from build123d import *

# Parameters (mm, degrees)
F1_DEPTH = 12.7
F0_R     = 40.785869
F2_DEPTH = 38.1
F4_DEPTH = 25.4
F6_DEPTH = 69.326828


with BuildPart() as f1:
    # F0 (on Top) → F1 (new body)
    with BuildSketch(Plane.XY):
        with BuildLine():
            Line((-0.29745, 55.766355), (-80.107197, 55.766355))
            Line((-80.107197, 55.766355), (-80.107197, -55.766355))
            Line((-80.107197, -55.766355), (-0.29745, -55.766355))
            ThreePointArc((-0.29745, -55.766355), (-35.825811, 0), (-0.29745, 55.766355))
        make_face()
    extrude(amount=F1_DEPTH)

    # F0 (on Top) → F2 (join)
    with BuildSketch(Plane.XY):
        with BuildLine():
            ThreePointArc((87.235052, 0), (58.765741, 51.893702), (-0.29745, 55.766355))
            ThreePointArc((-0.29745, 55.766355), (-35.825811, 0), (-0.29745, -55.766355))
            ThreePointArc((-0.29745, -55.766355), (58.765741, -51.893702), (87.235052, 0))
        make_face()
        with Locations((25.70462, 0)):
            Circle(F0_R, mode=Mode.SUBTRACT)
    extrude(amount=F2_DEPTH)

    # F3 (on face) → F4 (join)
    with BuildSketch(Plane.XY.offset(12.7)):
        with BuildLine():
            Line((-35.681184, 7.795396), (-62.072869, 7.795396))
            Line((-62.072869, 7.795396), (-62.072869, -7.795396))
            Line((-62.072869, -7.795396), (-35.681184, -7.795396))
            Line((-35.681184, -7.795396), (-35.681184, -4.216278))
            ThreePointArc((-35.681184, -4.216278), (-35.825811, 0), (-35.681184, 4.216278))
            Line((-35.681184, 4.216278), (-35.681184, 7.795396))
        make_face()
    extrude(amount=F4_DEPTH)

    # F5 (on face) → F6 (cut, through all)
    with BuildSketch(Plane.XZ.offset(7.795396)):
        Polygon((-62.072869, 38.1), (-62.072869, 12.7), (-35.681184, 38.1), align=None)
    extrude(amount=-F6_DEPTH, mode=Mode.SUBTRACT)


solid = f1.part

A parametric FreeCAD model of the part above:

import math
import FreeCAD as App
import Part
import Sketcher

V = App.Vector
Q = App.Units.Quantity


def add_polygon(sketch, points):
    """Adds a closed chain of lines whose ends are joined by coincident constraints."""
    first, n = sketch.GeometryCount, len(points)
    for a, b in zip(points, points[1:] + points[:1]):
        sketch.addGeometry(Part.LineSegment(App.Vector(*a, 0), App.Vector(*b, 0)), False)
    for i in range(n):
        sketch.addConstraint(Sketcher.Constraint("Coincident", first + i, 2, first + (i + 1) % n, 1))

doc = App.newDocument("Part")
params = doc.addObject("Spreadsheet::Sheet", "Params")
for row, (alias, value) in enumerate([
    ("pad1_length", "0.5 in"),
    ("pad2_length", "1.5 in"),
    ("pad3_length", "1 in"),
    ("sketch4_height", "1 in"),
], start=1):
    params.set(f"A{row}", alias)
    params.set(f"B{row}", "=" + value)
    params.setAlias(f"B{row}", alias)

body = doc.addObject("PartDesign::Body", "Body")

# Sketch on XY plane
sketch1 = body.newObject("Sketcher::SketchObject", "Sketch")
sketch1.AttachmentSupport = (doc.getObject("XY_Plane"), [""])
sketch1.MapMode = "FlatFace"
sketch1.addGeometry([
    Part.LineSegment(V(0, 56, 0), V(-80, 56, 0)),
    Part.LineSegment(V(-80, 56, 0), V(-80, -56, 0)),
    Part.LineSegment(V(-80, -56, 0), V(0, -56, 0)),
    Part.ArcOfCircle(Part.Circle(V(26, 0, 0), V(0, 0, 1), 62), math.radians(115), math.radians(245)),
], False)
sketch1.addConstraint([
    Sketcher.Constraint("Coincident", 0, 2, 1, 1),
    Sketcher.Constraint("Coincident", 1, 2, 2, 1),
    Sketcher.Constraint("Coincident", 2, 2, 3, 2),
    Sketcher.Constraint("Coincident", 3, 1, 0, 1),
    Sketcher.Constraint("Horizontal", 0),
    Sketcher.Constraint("Vertical", 1),
    Sketcher.Constraint("Horizontal", 2),
    Sketcher.Constraint("Symmetric", 2, 2, 3, 1, -1),
    Sketcher.Constraint("Radius", 3, Q("61.530432 mm")),
    Sketcher.Constraint("DistanceY", 1, 2, 1, 1, Q("111.53271 mm")),
    Sketcher.Constraint("DistanceX", 0, 2, 0, 1, Q("79.809747 mm")),
    Sketcher.Constraint("DistanceX", -1, 1, 3, 3, Q("25.704621 mm")),
])
pad1 = body.newObject("PartDesign::Pad", "Pad")
pad1.Profile = sketch1
pad1.setExpression("Length", "Params.pad1_length")

# Sketch on XY plane
sketch2 = body.newObject("Sketcher::SketchObject", "Sketch001")
sketch2.AttachmentSupport = (doc.getObject("XY_Plane"), [""])
sketch2.MapMode = "FlatFace"
sketch2.addGeometry([
    Part.ArcOfCircle(Part.Circle(V(26, 0, 0), V(0, 0, 1), 62), math.radians(0), math.radians(115)),
    Part.ArcOfCircle(Part.Circle(V(26, 0, 0), V(0, 0, 1), 62), math.radians(115), math.radians(245)),
    Part.ArcOfCircle(Part.Circle(V(26, 0, 0), V(0, 0, 1), 62), math.radians(-115), math.radians(0)),
    Part.Circle(V(26, 0, 0), V(0, 0, 1), 41),
], False)
sketch2.addConstraint([
    Sketcher.Constraint("Tangent", 0, 2, 1, 1),
    Sketcher.Constraint("Tangent", 1, 2, 2, 1),
    Sketcher.Constraint("Tangent", 2, 2, 0, 1),
    Sketcher.Constraint("Coincident", 3, 3, 0, 3),
    Sketcher.Constraint("Symmetric", 0, 2, 1, 2, -1),
    Sketcher.Constraint("PointOnObject", 2, 2, -1),
    Sketcher.Constraint("Radius", 0, Q("61.530432 mm")),
    Sketcher.Constraint("Diameter", 3, Q("81.571738 mm")),
    Sketcher.Constraint("DistanceX", 0, 2, 2, 2, Q("87.532502 mm")),
    Sketcher.Constraint("DistanceX", -1, 1, 0, 3, Q("25.70462 mm")),
])
pad2 = body.newObject("PartDesign::Pad", "Pad001")
pad2.Profile = sketch2
pad2.setExpression("Length", "Params.pad2_length")

# Sketch on XY plane
sketch3 = body.newObject("Sketcher::SketchObject", "Sketch002")
sketch3.AttachmentSupport = (doc.getObject("XY_Plane"), [""])
sketch3.MapMode = "FlatFace"
sketch3.AttachmentOffset = App.Placement(V(0, 0, 0.5 * 25.4), App.Rotation())
sketch3.addGeometry([
    Part.LineSegment(V(-35.7, 7.8, 0), V(-62.1, 7.8, 0)),  # 0
    Part.LineSegment(V(-62.1, 7.8, 0), V(-62.1, -7.8, 0)),  # 1
    Part.LineSegment(V(-62.1, -7.8, 0), V(-35.7, -7.8, 0)),  # 2
    Part.LineSegment(V(-35.7, -7.8, 0), V(-35.7, -4.2, 0)),  # 3
    Part.ArcOfCircle(Part.Circle(V(25.7, 0, 0), V(0, 0, 1), 61.5), math.radians(176.07), math.radians(183.93)),  # 4
    Part.LineSegment(V(-35.7, 4.2, 0), V(-35.7, 7.8, 0)),  # 5
], False)
sketch3.addConstraint([
    Sketcher.Constraint("Coincident", 0, 2, 1, 1),
    Sketcher.Constraint("Coincident", 1, 2, 2, 1),
    Sketcher.Constraint("Coincident", 2, 2, 3, 1),
    Sketcher.Constraint("Coincident", 3, 2, 4, 2),
    Sketcher.Constraint("Coincident", 4, 1, 5, 1),
    Sketcher.Constraint("Coincident", 5, 2, 0, 1),
    Sketcher.Constraint("Horizontal", 0),
    Sketcher.Constraint("Vertical", 1),
    Sketcher.Constraint("Horizontal", 2),
    Sketcher.Constraint("Vertical", 3),
    Sketcher.Constraint("Vertical", 5),
    Sketcher.Constraint("Symmetric", 3, 2, 4, 1, -1),
    Sketcher.Constraint("Equal", 3, 5),
    Sketcher.Constraint("Radius", 4, Q("61.53041 mm")),
    Sketcher.Constraint("DistanceY", 3, 1, 3, 2, Q("3.579118 mm")),
    Sketcher.Constraint("DistanceX", -1, 1, 4, 3, Q("25.704599 mm")),
    Sketcher.Constraint("DistanceX", 0, 2, 0, 1, Q("26.391685 mm")),
    Sketcher.Constraint("DistanceY", 1, 2, 1, 1, Q("15.590792 mm")),
])
pad3 = body.newObject("PartDesign::Pad", "Pad002")
pad3.Profile = sketch3
pad3.setExpression("Length", "Params.pad3_length")

# Sketch on XZ plane
sketch4 = body.newObject("Sketcher::SketchObject", "Sketch003")
sketch4.AttachmentSupport = (doc.getObject("XZ_Plane"), [""])
sketch4.MapMode = "FlatFace"
sketch4.AttachmentOffset = App.Placement(V(0, 0, 7.795396), App.Rotation())
add_polygon(sketch4, [(-62, 38), (-62, 13), (-36, 38)])  # lines 0-2
sketch4.addConstraint([
    Sketcher.Constraint("Vertical", 0),
    Sketcher.Constraint("Horizontal", 2),
    Sketcher.Constraint("DistanceY", 0, 2, 0, 1, Q("1 in")),
    Sketcher.Constraint("DistanceY", -1, 1, 0, 2, Q("0.5 in")),
    Sketcher.Constraint("DistanceX", 2, 2, 2, 1, Q("26.391685 mm")),
    Sketcher.Constraint("DistanceX", 0, 2, -1, 1, Q("62.072869 mm")),
])
sketch4.setExpression("Constraints[5]", "Params.sketch4_height")
pocket1 = body.newObject("PartDesign::Pocket", "Pocket")
pocket1.Profile = sketch4
pocket1.Type = "ThroughAll"

doc.recompute()
